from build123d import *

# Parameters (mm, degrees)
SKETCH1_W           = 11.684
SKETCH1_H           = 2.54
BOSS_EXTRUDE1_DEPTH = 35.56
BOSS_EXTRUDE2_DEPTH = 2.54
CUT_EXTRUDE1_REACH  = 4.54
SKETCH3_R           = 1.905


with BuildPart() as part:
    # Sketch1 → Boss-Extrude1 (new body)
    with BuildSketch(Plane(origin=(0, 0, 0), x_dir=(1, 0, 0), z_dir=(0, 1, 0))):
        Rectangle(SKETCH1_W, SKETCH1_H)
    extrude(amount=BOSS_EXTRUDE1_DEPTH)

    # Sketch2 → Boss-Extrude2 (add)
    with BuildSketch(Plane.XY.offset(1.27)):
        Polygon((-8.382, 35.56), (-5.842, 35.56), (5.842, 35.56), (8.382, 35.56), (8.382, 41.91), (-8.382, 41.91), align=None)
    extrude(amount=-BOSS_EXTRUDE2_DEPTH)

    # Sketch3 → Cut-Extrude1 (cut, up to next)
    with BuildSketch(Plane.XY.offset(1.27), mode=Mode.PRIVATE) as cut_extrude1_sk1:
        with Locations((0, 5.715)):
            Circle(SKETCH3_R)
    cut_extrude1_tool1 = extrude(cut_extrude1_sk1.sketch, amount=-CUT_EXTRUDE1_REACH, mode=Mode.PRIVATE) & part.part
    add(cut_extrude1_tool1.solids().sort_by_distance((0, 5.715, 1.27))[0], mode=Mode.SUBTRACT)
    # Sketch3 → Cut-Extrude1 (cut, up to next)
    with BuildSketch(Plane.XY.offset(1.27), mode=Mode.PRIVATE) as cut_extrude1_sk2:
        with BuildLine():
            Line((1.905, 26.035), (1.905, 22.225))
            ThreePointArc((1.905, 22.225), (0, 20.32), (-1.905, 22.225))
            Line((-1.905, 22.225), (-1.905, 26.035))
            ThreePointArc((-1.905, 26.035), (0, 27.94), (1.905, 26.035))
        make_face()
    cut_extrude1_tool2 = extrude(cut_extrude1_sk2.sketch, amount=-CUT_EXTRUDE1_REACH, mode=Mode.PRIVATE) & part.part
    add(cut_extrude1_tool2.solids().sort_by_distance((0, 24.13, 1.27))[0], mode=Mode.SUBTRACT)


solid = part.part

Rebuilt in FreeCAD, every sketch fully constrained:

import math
import FreeCAD as App
import Part
import Sketcher
from FreeCAD import Vector
Q = App.Units.Quantity

doc = App.newDocument("Part")
params = doc.addObject("Spreadsheet::Sheet", "Params")
for row, (alias, value) in enumerate([
    ("sketch1_height", "0.1 in"),
    ("sketch1_width", "0.46 in"),
    ("pad1_length", "1.4 in"),
    ("sketch2_width", "0.66 in"),
    ("sketch2_height", "0.25 in"),
    ("pad2_length", "0.1 in"),
    ("sketch3_diameter", "0.15 in"),
    ("sketch4_radius", "0.075 in"),
    ("sketch4_height", "0.15 in"),
], start=1):
    params.set(f"A{row}", alias)
    params.set(f"B{row}", "=" + value)
    params.setAlias(f"B{row}", alias)

body = doc.addObject("PartDesign::Body", "Body")

# Sketch on XZ plane
sketch1 = body.newObject("Sketcher::SketchObject", "Sketch")
sketch1.AttachmentSupport = (doc.getObject("XZ_Plane"), [""])
sketch1.MapMode = "FlatFace"
sketch1.addGeometry([
    Part.LineSegment(Vector(-5.8, -1.3, 0), Vector(-5.8, 1.3, 0)),
    Part.LineSegment(Vector(-5.8, 1.3, 0), Vector(5.8, 1.3, 0)),
    Part.LineSegment(Vector(5.8, 1.3, 0), Vector(5.8, -1.3, 0)),
    Part.LineSegment(Vector(5.8, -1.3, 0), Vector(-5.8, -1.3, 0)),
], False)
sketch1.addConstraint([
    Sketcher.Constraint("Coincident", 0, 2, 1, 1),
    Sketcher.Constraint("Coincident", 1, 2, 2, 1),
    Sketcher.Constraint("Coincident", 2, 2, 3, 1),
    Sketcher.Constraint("Coincident", 3, 2, 0, 1),
    Sketcher.Constraint("Vertical", 0),
    Sketcher.Constraint("Horizontal", 1),
    Sketcher.Constraint("Vertical", 2),
    Sketcher.Constraint("Horizontal", 3),
    Sketcher.Constraint("Symmetric", 0, 2, 2, 2, -1, 1),
    Sketcher.Constraint("DistanceY", 0, 1, 0, 2, Q("0.1 in")),
    Sketcher.Constraint("DistanceX", 1, 1, 1, 2, Q("0.46 in")),
])
sketch1.setExpression("Constraints[9]", "Params.sketch1_height")
sketch1.setExpression("Constraints[10]", "Params.sketch1_width")
pad1 = body.newObject("PartDesign::Pad", "Pad")
pad1.Profile = sketch1
pad1.setExpression("Length", "Params.pad1_length")
pad1.Reversed = True

# Sketch on XY plane
sketch2 = body.newObject("Sketcher::SketchObject", "Sketch001")
sketch2.AttachmentSupport = (doc.getObject("XY_Plane"), [""])
sketch2.MapMode = "FlatFace"
sketch2.AttachmentOffset = App.Placement(Vector(0, 0, 0.05 * 25.4), App.Rotation())
sketch2.addGeometry([
    Part.LineSegment(Vector(-8, 36, 0), Vector(8, 36, 0)),
    Part.LineSegment(Vector(8, 36, 0), Vector(8, 42, 0)),
    Part.LineSegment(Vector(8, 42, 0), Vector(-8, 42, 0)),
    Part.LineSegment(Vector(-8, 42, 0), Vector(-8, 36, 0)),
], False)
sketch2.addConstraint([
    Sketcher.Constraint("Coincident", 0, 2, 1, 1),
    Sketcher.Constraint("Coincident", 1, 2, 2, 1),
    Sketcher.Constraint("Coincident", 2, 2, 3, 1),
    Sketcher.Constraint("Coincident", 3, 2, 0, 1),
    Sketcher.Constraint("Horizontal", 0),
    Sketcher.Constraint("Vertical", 1),
    Sketcher.Constraint("Horizontal", 2),
    Sketcher.Constraint("Vertical", 3),
    Sketcher.Constraint("DistanceX", 0, 1, 0, 2, Q("0.66 in")),
    Sketcher.Constraint("DistanceY", 1, 1, 1, 2, Q("0.25 in")),
    Sketcher.Constraint("DistanceY", -1, 1, 0, 2, Q("1.4 in")),
    Sketcher.Constraint("DistanceX", -1, 1, 0, 2, Q("0.33 in")),
])
sketch2.setExpression("Constraints[8]", "Params.sketch2_width")
sketch2.setExpression("Constraints[9]", "Params.sketch2_height")
pad2 = body.newObject("PartDesign::Pad", "Pad001")
pad2.Profile = sketch2
pad2.setExpression("Length", "Params.pad2_length")
pad2.Reversed = True

# Sketch on XY plane
sketch3 = body.newObject("Sketcher::SketchObject", "Sketch002")
sketch3.AttachmentSupport = (doc.getObject("XY_Plane"), [""])
sketch3.MapMode = "FlatFace"
sketch3.AttachmentOffset = App.Placement(Vector(0, 0, 0.05 * 25.4), App.Rotation())
sketch3.addGeometry(Part.Circle(Vector(0, 5.7, 0), Vector(0, 0, 1), 1.9), False)
sketch3.addConstraint([
    Sketcher.Constraint("PointOnObject", 0, 3, -2),
    Sketcher.Constraint("Diameter", 0, Q("0.15 in")),
    Sketcher.Constraint("DistanceY", -1, 1, 0, 3, Q("0.225 in")),
])
sketch3.setExpression("Constraints[1]", "Params.sketch3_diameter")
pocket1 = body.newObject("PartDesign::Pocket", "Pocket")
pocket1.Profile = sketch3
pocket1.Type = "UpToFirst"

# Sketch on XY plane
sketch4 = body.newObject("Sketcher::SketchObject", "Sketch003")
sketch4.AttachmentSupport = (doc.getObject("XY_Plane"), [""])
sketch4.MapMode = "FlatFace"
sketch4.AttachmentOffset = App.Placement(Vector(0, 0, 0.05 * 25.4), App.Rotation())
sketch4.addGeometry([
    Part.LineSegment(Vector(1.9, 22.2, 0), Vector(1.9, 26, 0)),
    Part.ArcOfCircle(Part.Circle(Vector(0, 26, 0), Vector(0, 0, 1), 1.9), math.radians(0), math.radians(180)),
    Part.LineSegment(Vector(-1.9, 26, 0), Vector(-1.9, 22.2, 0)),
    Part.ArcOfCircle(Part.Circle(Vector(0, 22.2, 0), Vector(0, 0, 1), 1.9), math.radians(180), math.radians(360)),
], False)
sketch4.addConstraint([
    Sketcher.Constraint("Tangent", 0, 2, 1, 1),
    Sketcher.Constraint("Tangent", 1, 2, 2, 1),
    Sketcher.Constraint("Tangent", 2, 2, 3, 1),
    Sketcher.Constraint("Tangent", 3, 2, 0, 1),
    Sketcher.Constraint("Vertical", 0),
    Sketcher.Constraint("Vertical", 2),
    Sketcher.Constraint("PointOnObject", 1, 3, -2),
    Sketcher.Constraint("Radius", 1, Q("0.075 in")),
    Sketcher.Constraint("DistanceY", 0, 1, 0, 2, Q("0.15 in")),
    Sketcher.Constraint("DistanceY", -1, 1, 1, 3, Q("1.025 in")),
])
sketch4.setExpression("Constraints[7]", "Params.sketch4_radius")
sketch4.setExpression("Constraints[8]", "Params.sketch4_height")
pocket2 = body.newObject("PartDesign::Pocket", "Pocket001")
pocket2.Profile = sketch4
pocket2.Type = "UpToFirst"

doc.recompute()
